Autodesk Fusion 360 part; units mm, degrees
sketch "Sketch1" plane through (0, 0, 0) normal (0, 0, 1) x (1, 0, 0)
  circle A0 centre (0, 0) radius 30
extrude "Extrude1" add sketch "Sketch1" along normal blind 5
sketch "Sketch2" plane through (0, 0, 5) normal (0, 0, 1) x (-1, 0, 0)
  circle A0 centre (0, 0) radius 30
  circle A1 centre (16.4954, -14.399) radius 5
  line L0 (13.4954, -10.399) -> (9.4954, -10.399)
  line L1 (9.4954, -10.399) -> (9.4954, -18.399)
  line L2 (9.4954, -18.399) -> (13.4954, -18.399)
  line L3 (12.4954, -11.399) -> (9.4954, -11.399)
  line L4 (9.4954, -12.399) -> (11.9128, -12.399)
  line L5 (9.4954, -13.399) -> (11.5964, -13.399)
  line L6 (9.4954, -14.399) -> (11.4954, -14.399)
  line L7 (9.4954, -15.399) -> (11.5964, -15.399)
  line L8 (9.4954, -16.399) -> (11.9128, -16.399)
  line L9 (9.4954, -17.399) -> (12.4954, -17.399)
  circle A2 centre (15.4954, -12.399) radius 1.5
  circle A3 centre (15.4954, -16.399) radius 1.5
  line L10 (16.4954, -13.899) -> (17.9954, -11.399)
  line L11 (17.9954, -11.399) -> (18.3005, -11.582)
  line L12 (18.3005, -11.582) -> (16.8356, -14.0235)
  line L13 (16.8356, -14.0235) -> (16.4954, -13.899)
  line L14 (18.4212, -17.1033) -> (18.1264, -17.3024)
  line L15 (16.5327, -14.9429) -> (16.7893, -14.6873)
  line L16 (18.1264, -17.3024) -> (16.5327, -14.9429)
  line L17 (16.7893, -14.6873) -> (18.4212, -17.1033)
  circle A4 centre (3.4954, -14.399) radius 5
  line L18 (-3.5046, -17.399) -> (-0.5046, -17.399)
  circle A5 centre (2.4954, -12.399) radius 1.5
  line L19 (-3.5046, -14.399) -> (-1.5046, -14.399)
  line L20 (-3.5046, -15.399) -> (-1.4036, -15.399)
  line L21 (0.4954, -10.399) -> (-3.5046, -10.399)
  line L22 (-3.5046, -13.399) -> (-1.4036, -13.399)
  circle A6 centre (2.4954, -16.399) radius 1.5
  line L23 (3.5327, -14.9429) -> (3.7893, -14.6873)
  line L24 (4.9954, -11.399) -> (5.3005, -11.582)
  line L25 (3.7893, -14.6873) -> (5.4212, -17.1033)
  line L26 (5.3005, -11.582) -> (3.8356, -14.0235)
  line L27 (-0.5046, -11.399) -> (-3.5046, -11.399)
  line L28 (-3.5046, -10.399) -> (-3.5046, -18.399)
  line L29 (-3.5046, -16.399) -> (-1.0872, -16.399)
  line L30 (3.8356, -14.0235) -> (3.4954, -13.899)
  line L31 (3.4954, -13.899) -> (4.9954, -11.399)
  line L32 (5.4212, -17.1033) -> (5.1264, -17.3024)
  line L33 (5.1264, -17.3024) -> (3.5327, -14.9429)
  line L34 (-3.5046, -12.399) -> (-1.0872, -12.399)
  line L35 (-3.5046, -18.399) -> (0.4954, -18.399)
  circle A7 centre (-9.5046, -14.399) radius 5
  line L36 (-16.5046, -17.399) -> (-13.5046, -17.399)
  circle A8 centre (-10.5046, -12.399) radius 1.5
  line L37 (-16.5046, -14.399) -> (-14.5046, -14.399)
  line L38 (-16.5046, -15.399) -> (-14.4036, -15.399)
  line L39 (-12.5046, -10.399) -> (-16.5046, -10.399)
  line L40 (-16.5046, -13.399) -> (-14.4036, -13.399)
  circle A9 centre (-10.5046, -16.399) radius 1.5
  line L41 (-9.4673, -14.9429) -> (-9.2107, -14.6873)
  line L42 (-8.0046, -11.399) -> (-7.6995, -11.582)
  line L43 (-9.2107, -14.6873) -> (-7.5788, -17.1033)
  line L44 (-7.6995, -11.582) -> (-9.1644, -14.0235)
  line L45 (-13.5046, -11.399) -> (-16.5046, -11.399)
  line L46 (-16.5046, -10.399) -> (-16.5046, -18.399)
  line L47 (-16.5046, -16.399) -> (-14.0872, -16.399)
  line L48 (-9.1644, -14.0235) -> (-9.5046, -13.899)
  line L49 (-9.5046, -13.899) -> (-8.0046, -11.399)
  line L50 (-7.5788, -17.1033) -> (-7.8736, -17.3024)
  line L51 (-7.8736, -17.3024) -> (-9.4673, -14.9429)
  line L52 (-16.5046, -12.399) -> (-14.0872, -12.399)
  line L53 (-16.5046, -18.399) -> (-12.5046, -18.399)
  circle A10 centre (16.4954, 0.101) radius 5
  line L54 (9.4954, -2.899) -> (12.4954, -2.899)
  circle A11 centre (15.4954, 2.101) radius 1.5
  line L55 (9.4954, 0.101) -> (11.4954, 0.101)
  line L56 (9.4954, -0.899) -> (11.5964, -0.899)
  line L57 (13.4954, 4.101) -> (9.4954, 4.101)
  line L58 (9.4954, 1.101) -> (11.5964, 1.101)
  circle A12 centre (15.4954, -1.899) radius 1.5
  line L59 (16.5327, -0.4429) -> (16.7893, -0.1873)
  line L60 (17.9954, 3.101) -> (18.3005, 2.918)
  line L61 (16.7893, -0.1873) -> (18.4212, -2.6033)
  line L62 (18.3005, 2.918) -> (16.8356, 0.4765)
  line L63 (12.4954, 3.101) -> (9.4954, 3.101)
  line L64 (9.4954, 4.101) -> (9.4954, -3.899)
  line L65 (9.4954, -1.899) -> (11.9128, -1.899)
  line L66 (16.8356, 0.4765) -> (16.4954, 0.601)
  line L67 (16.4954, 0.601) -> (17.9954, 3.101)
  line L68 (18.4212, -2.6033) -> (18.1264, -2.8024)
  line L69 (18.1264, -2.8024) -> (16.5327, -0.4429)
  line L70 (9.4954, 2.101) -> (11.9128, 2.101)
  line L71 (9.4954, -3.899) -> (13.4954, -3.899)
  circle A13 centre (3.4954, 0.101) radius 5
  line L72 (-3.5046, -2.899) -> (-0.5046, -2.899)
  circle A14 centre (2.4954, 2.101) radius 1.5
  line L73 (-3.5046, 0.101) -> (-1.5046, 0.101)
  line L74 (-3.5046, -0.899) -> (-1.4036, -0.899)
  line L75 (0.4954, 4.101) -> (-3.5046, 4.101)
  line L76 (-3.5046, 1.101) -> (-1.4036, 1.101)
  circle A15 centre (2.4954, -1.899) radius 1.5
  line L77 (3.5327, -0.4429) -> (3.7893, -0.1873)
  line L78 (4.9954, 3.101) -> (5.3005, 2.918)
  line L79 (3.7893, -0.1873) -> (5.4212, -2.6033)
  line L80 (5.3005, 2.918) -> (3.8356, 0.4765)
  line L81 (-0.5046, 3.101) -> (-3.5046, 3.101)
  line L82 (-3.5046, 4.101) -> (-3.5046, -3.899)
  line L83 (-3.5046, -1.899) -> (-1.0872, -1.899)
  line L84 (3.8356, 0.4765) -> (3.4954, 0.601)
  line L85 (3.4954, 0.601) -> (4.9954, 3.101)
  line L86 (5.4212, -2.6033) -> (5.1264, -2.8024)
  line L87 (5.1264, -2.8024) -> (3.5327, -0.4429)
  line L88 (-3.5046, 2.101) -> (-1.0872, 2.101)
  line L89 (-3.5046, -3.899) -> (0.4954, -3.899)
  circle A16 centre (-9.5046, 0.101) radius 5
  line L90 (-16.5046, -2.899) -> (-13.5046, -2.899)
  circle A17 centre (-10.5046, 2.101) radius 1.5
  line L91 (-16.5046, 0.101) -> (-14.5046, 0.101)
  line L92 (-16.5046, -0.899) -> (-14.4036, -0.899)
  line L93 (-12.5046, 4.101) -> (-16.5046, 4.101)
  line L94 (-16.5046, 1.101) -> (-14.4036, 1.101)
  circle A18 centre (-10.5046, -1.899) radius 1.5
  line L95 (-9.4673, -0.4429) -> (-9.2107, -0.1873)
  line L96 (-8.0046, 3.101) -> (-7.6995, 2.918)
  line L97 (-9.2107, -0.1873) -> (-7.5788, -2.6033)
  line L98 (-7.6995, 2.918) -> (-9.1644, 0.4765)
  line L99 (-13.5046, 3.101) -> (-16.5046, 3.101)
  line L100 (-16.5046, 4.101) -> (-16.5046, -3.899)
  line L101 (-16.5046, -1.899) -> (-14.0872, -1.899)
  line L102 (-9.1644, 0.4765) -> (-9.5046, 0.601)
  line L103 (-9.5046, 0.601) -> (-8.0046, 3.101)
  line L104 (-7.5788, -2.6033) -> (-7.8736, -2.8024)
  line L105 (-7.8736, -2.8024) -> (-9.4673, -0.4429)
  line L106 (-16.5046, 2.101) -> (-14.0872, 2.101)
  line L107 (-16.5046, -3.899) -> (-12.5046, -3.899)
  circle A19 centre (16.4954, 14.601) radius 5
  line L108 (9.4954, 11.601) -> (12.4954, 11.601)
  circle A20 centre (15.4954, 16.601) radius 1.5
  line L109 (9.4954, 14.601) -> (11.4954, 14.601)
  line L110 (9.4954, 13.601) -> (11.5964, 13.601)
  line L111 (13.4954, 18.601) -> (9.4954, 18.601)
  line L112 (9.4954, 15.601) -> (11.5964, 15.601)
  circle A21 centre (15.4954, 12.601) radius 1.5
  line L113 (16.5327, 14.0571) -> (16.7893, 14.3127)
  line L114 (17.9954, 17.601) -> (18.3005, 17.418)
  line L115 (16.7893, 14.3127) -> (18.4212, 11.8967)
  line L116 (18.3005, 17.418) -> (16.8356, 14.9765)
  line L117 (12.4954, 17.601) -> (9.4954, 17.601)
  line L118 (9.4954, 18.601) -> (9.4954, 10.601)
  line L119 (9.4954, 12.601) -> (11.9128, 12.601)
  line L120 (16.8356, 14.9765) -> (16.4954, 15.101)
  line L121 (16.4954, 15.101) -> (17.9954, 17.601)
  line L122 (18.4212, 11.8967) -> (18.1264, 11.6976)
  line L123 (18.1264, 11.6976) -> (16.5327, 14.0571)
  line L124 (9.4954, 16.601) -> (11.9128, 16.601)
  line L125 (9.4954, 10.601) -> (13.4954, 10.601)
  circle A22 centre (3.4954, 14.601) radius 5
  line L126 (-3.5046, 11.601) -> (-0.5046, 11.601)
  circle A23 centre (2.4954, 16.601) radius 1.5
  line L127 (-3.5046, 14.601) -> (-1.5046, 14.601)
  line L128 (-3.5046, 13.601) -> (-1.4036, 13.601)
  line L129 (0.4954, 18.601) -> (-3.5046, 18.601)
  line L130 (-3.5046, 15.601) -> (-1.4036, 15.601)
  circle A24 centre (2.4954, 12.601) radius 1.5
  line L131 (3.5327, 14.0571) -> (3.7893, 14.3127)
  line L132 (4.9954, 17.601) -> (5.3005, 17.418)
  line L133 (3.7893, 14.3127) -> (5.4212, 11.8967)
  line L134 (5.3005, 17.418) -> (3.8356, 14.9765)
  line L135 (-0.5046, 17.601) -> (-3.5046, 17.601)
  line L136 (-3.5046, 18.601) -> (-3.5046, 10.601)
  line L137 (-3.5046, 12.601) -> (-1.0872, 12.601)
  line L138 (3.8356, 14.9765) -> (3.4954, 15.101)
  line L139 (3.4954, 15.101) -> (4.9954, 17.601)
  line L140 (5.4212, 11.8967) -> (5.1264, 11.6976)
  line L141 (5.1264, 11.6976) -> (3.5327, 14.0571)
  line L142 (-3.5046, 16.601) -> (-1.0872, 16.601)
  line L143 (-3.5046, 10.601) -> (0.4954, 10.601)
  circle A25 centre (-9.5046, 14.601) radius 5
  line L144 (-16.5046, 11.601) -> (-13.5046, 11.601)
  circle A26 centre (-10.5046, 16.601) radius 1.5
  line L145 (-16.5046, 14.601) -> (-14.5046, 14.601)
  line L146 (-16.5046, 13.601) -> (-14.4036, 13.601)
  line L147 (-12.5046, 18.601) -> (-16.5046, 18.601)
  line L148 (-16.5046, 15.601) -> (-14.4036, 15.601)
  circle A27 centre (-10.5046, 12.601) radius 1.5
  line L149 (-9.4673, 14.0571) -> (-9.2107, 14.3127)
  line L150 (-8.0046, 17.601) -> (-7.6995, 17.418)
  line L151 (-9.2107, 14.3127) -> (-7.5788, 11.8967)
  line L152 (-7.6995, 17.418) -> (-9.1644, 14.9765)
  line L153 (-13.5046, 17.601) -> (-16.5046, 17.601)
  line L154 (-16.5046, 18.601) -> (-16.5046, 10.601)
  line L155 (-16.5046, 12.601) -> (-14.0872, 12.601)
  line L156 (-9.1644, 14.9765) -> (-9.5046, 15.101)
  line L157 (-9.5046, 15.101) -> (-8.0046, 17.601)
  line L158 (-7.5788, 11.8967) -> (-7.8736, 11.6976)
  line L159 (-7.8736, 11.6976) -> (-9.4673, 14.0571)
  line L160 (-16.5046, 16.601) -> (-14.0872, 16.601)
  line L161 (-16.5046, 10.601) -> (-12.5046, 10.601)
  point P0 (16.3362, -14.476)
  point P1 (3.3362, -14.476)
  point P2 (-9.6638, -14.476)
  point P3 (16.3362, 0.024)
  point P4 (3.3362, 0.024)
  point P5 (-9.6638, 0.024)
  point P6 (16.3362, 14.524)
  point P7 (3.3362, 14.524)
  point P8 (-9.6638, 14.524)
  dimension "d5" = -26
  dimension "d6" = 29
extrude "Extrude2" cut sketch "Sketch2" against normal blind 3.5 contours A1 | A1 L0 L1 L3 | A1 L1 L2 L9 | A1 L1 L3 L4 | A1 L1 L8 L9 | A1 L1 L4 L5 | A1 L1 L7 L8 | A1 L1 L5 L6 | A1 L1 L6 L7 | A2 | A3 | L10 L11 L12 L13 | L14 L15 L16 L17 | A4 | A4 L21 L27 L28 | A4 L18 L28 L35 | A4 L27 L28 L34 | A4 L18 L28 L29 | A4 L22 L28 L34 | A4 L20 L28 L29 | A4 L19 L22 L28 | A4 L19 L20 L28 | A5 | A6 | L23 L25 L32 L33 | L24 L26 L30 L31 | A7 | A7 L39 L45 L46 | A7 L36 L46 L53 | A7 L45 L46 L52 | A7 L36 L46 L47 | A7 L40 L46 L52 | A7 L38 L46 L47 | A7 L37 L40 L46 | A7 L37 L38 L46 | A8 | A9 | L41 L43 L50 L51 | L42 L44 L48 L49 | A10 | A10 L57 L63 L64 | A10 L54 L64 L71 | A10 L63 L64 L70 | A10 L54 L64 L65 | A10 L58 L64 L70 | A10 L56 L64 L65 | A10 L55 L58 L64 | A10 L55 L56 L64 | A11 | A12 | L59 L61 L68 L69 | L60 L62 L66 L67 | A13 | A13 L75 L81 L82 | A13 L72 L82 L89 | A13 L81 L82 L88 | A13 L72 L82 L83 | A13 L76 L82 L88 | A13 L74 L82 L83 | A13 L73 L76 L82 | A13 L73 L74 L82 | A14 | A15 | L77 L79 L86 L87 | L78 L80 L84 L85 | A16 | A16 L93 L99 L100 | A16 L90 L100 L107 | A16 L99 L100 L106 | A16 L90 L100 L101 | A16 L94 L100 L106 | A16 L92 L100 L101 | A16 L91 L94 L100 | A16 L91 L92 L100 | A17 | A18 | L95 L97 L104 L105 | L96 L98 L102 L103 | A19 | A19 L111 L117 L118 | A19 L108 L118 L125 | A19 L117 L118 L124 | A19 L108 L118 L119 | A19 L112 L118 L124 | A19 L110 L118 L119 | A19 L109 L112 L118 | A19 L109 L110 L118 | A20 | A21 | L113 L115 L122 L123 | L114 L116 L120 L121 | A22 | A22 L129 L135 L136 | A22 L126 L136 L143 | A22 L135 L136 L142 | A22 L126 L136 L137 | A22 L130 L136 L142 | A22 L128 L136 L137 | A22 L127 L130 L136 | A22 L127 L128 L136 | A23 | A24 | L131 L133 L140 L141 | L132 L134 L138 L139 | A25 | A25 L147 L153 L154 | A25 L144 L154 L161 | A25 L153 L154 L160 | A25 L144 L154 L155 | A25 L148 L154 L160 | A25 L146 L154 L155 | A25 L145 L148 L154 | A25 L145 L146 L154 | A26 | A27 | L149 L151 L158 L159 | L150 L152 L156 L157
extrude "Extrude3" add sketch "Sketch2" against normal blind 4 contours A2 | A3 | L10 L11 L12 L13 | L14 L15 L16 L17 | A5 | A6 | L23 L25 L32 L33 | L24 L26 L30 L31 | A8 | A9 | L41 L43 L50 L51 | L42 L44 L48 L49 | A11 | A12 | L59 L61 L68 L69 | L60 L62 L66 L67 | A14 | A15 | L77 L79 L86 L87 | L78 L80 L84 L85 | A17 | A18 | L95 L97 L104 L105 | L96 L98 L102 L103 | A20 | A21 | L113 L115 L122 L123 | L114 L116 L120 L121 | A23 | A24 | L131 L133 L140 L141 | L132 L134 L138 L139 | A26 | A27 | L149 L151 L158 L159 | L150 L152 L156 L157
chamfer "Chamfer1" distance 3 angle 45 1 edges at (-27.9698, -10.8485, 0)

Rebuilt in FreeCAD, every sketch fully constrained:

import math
import FreeCAD as App
import Part
import Sketcher
from FreeCAD import Vector
Q = App.Units.Quantity


def edges_at(feature, points):
    """Names of the edges that pass closest to the given points."""
    edges = feature.Shape.Edges
    near = lambda p: min(range(len(edges)), key=lambda i: edges[i].distToShape(Part.Vertex(*p))[0])
    return sorted({f"Edge{near(p) + 1}" for p in points})

doc = App.newDocument("Part")
body = doc.addObject("PartDesign::Body", "Body")

# Sketch on XY plane
sketch1 = body.newObject("Sketcher::SketchObject", "Sketch")
sketch1.AttachmentSupport = (doc.getObject("XY_Plane"), [""])
sketch1.MapMode = "FlatFace"
sketch1.addGeometry(Part.Circle(Vector(0, 0, 0), Vector(0, 0, 1), 30), False)
sketch1.addConstraint(Sketcher.Constraint("Coincident", 0, 3, -1, 1))
sketch1.addConstraint(Sketcher.Constraint("Diameter", 0, Q("60 mm")))
pad1 = body.newObject("PartDesign::Pad", "Pad")
pad1.Profile = sketch1
pad1.Length = 5

# Sketch on XY plane
sketch2 = body.newObject("Sketcher::SketchObject", "Sketch001")
sketch2.AttachmentSupport = (doc.getObject("XY_Plane"), [""])
sketch2.MapMode = "FlatFace"
sketch2.AttachmentOffset = App.Placement(Vector(0, 0, 5), App.Rotation())
sketch2.addGeometry(Part.ArcOfCircle(Part.Circle(Vector(-16.4954, 14.399, 0), Vector(0, 0, 1), 5), math.radians(53.130102), math.radians(306.869898)), False)
sketch2.addGeometry(Part.LineSegment(Vector(-13.4954, 10.399, 0), Vector(-9.4954, 10.399, 0)), False)
sketch2.addGeometry(Part.LineSegment(Vector(-9.4954, 10.399, 0), Vector(-9.4954, 18.399, 0)), False)
sketch2.addGeometry(Part.LineSegment(Vector(-9.4954, 18.399, 0), Vector(-13.4954, 18.399, 0)), False)
sketch2.addGeometry(Part.ArcOfCircle(Part.Circle(Vector(-3.4954, 14.399, 0), Vector(0, 0, 1), 5), math.radians(53.130102), math.radians(306.869898)), False)
sketch2.addGeometry(Part.LineSegment(Vector(-0.4954, 10.399, 0), Vector(3.5046, 10.399, 0)), False)
sketch2.addGeometry(Part.LineSegment(Vector(3.5046, 10.399, 0), Vector(3.5046, 18.399, 0)), False)
sketch2.addGeometry(Part.LineSegment(Vector(3.5046, 18.399, 0), Vector(-0.4954, 18.399, 0)), False)
sketch2.addGeometry(Part.ArcOfCircle(Part.Circle(Vector(9.5046, 14.399, 0), Vector(0, 0, 1), 5), math.radians(53.130102), math.radians(306.869898)), False)
sketch2.addGeometry(Part.LineSegment(Vector(12.5046, 10.399, 0), Vector(16.5046, 10.399, 0)), False)
sketch2.addGeometry(Part.LineSegment(Vector(16.5046, 10.399, 0), Vector(16.5046, 18.399, 0)), False)
sketch2.addGeometry(Part.LineSegment(Vector(16.5046, 18.399, 0), Vector(12.5046, 18.399, 0)), False)
sketch2.addGeometry(Part.ArcOfCircle(Part.Circle(Vector(-16.4954, -0.101, 0), Vector(0, 0, 1), 5), math.radians(53.130102), math.radians(306.869898)), False)
sketch2.addGeometry(Part.LineSegment(Vector(-13.4954, -4.101, 0), Vector(-9.4954, -4.101, 0)), False)
sketch2.addGeometry(Part.LineSegment(Vector(-9.4954, -4.101, 0), Vector(-9.4954, 3.899, 0)), False)
sketch2.addGeometry(Part.LineSegment(Vector(-9.4954, 3.899, 0), Vector(-13.4954, 3.899, 0)), False)
sketch2.addGeometry(Part.ArcOfCircle(Part.Circle(Vector(-3.4954, -0.101, 0), Vector(0, 0, 1), 5), math.radians(53.130102), math.radians(306.869898)), False)
sketch2.addGeometry(Part.LineSegment(Vector(-0.4954, -4.101, 0), Vector(3.5046, -4.101, 0)), False)
sketch2.addGeometry(Part.LineSegment(Vector(3.5046, -4.101, 0), Vector(3.5046, 3.899, 0)), False)
sketch2.addGeometry(Part.LineSegment(Vector(3.5046, 3.899, 0), Vector(-0.4954, 3.899, 0)), False)
sketch2.addGeometry(Part.ArcOfCircle(Part.Circle(Vector(9.5046, -0.101, 0), Vector(0, 0, 1), 5), math.radians(53.130102), math.radians(306.869898)), False)
sketch2.addGeometry(Part.LineSegment(Vector(12.5046, -4.101, 0), Vector(16.5046, -4.101, 0)), False)
sketch2.addGeometry(Part.LineSegment(Vector(16.5046, -4.101, 0), Vector(16.5046, 3.899, 0)), False)
sketch2.addGeometry(Part.LineSegment(Vector(16.5046, 3.899, 0), Vector(12.5046, 3.899, 0)), False)
sketch2.addGeometry(Part.ArcOfCircle(Part.Circle(Vector(-16.4954, -14.601, 0), Vector(0, 0, 1), 5), math.radians(53.130102), math.radians(306.869898)), False)
sketch2.addGeometry(Part.LineSegment(Vector(-13.4954, -18.601, 0), Vector(-9.4954, -18.601, 0)), False)
sketch2.addGeometry(Part.LineSegment(Vector(-9.4954, -18.601, 0), Vector(-9.4954, -10.601, 0)), False)
sketch2.addGeometry(Part.LineSegment(Vector(-9.4954, -10.601, 0), Vector(-13.4954, -10.601, 0)), False)
sketch2.addGeometry(Part.ArcOfCircle(Part.Circle(Vector(-3.4954, -14.601, 0), Vector(0, 0, 1), 5), math.radians(53.130102), math.radians(306.869898)), False)
sketch2.addGeometry(Part.LineSegment(Vector(-0.4954, -18.601, 0), Vector(3.5046, -18.601, 0)), False)
sketch2.addGeometry(Part.LineSegment(Vector(3.5046, -18.601, 0), Vector(3.5046, -10.601, 0)), False)
sketch2.addGeometry(Part.LineSegment(Vector(3.5046, -10.601, 0), Vector(-0.4954, -10.601, 0)), False)
sketch2.addGeometry(Part.ArcOfCircle(Part.Circle(Vector(9.5046, -14.601, 0), Vector(0, 0, 1), 5), math.radians(53.130102), math.radians(306.869898)), False)
sketch2.addGeometry(Part.LineSegment(Vector(12.5046, -18.601, 0), Vector(16.5046, -18.601, 0)), False)
sketch2.addGeometry(Part.LineSegment(Vector(16.5046, -18.601, 0), Vector(16.5046, -10.601, 0)), False)
sketch2.addGeometry(Part.LineSegment(Vector(16.5046, -10.601, 0), Vector(12.5046, -10.601, 0)), False)
sketch2.addConstraint(Sketcher.Constraint("Coincident", 0, 2, 1, 1))
sketch2.addConstraint(Sketcher.Constraint("Coincident", 1, 2, 2, 1))
sketch2.addConstraint(Sketcher.Constraint("Coincident", 2, 2, 3, 1))
sketch2.addConstraint(Sketcher.Constraint("Coincident", 3, 2, 0, 1))
sketch2.addConstraint(Sketcher.Constraint("Coincident", 4, 2, 5, 1))
sketch2.addConstraint(Sketcher.Constraint("Coincident", 5, 2, 6, 1))
sketch2.addConstraint(Sketcher.Constraint("Coincident", 6, 2, 7, 1))
sketch2.addConstraint(Sketcher.Constraint("Coincident", 7, 2, 4, 1))
sketch2.addConstraint(Sketcher.Constraint("Coincident", 8, 2, 9, 1))
sketch2.addConstraint(Sketcher.Constraint("Coincident", 9, 2, 10, 1))
sketch2.addConstraint(Sketcher.Constraint("Coincident", 10, 2, 11, 1))
sketch2.addConstraint(Sketcher.Constraint("Coincident", 11, 2, 8, 1))
sketch2.addConstraint(Sketcher.Constraint("Coincident", 12, 2, 13, 1))
sketch2.addConstraint(Sketcher.Constraint("Coincident", 13, 2, 14, 1))
sketch2.addConstraint(Sketcher.Constraint("Coincident", 14, 2, 15, 1))
sketch2.addConstraint(Sketcher.Constraint("Coincident", 15, 2, 12, 1))
sketch2.addConstraint(Sketcher.Constraint("Coincident", 16, 2, 17, 1))
sketch2.addConstraint(Sketcher.Constraint("Coincident", 17, 2, 18, 1))
sketch2.addConstraint(Sketcher.Constraint("Coincident", 18, 2, 19, 1))
sketch2.addConstraint(Sketcher.Constraint("Coincident", 19, 2, 16, 1))
sketch2.addConstraint(Sketcher.Constraint("Coincident", 20, 2, 21, 1))
sketch2.addConstraint(Sketcher.Constraint("Coincident", 21, 2, 22, 1))
sketch2.addConstraint(Sketcher.Constraint("Coincident", 22, 2, 23, 1))
sketch2.addConstraint(Sketcher.Constraint("Coincident", 23, 2, 20, 1))
sketch2.addConstraint(Sketcher.Constraint("Coincident", 24, 2, 25, 1))
sketch2.addConstraint(Sketcher.Constraint("Coincident", 25, 2, 26, 1))
sketch2.addConstraint(Sketcher.Constraint("Coincident", 26, 2, 27, 1))
sketch2.addConstraint(Sketcher.Constraint("Coincident", 27, 2, 24, 1))
sketch2.addConstraint(Sketcher.Constraint("Coincident", 28, 2, 29, 1))
sketch2.addConstraint(Sketcher.Constraint("Coincident", 29, 2, 30, 1))
sketch2.addConstraint(Sketcher.Constraint("Coincident", 30, 2, 31, 1))
sketch2.addConstraint(Sketcher.Constraint("Coincident", 31, 2, 28, 1))
sketch2.addConstraint(Sketcher.Constraint("Coincident", 32, 2, 33, 1))
sketch2.addConstraint(Sketcher.Constraint("Coincident", 33, 2, 34, 1))
sketch2.addConstraint(Sketcher.Constraint("Coincident", 34, 2, 35, 1))
sketch2.addConstraint(Sketcher.Constraint("Coincident", 35, 2, 32, 1))
sketch2.addConstraint(Sketcher.Constraint("Horizontal", 1))
sketch2.addConstraint(Sketcher.Constraint("Vertical", 2))
sketch2.addConstraint(Sketcher.Constraint("Horizontal", 3))
sketch2.addConstraint(Sketcher.Constraint("Horizontal", 5))
sketch2.addConstraint(Sketcher.Constraint("Vertical", 6))
sketch2.addConstraint(Sketcher.Constraint("Horizontal", 7))
sketch2.addConstraint(Sketcher.Constraint("Horizontal", 9))
sketch2.addConstraint(Sketcher.Constraint("Vertical", 10))
sketch2.addConstraint(Sketcher.Constraint("Horizontal", 11))
sketch2.addConstraint(Sketcher.Constraint("Horizontal", 13))
sketch2.addConstraint(Sketcher.Constraint("Vertical", 14))
sketch2.addConstraint(Sketcher.Constraint("Horizontal", 15))
sketch2.addConstraint(Sketcher.Constraint("Horizontal", 17))
sketch2.addConstraint(Sketcher.Constraint("Vertical", 18))
sketch2.addConstraint(Sketcher.Constraint("Horizontal", 19))
sketch2.addConstraint(Sketcher.Constraint("Horizontal", 21))
sketch2.addConstraint(Sketcher.Constraint("Vertical", 22))
sketch2.addConstraint(Sketcher.Constraint("Horizontal", 23))
sketch2.addConstraint(Sketcher.Constraint("Horizontal", 25))
sketch2.addConstraint(Sketcher.Constraint("Vertical", 26))
sketch2.addConstraint(Sketcher.Constraint("Horizontal", 27))
sketch2.addConstraint(Sketcher.Constraint("Horizontal", 29))
sketch2.addConstraint(Sketcher.Constraint("Vertical", 30))
sketch2.addConstraint(Sketcher.Constraint("Horizontal", 31))
sketch2.addConstraint(Sketcher.Constraint("Horizontal", 33))
sketch2.addConstraint(Sketcher.Constraint("Vertical", 34))
sketch2.addConstraint(Sketcher.Constraint("Horizontal", 35))
sketch2.addConstraint(Sketcher.Constraint("Equal", 0, 4))
sketch2.addConstraint(Sketcher.Constraint("Equal", 4, 8))
sketch2.addConstraint(Sketcher.Constraint("Equal", 8, 12))
sketch2.addConstraint(Sketcher.Constraint("Equal", 12, 16))
sketch2.addConstraint(Sketcher.Constraint("Equal", 16, 20))
sketch2.addConstraint(Sketcher.Constraint("Equal", 20, 24))
sketch2.addConstraint(Sketcher.Constraint("Equal", 24, 28))
sketch2.addConstraint(Sketcher.Constraint("Equal", 28, 32))
sketch2.addConstraint(Sketcher.Constraint("Horizontal", 0, 3, 4, 3))
sketch2.addConstraint(Sketcher.Constraint("Horizontal", 4, 3, 8, 3))
sketch2.addConstraint(Sketcher.Constraint("Horizontal", 12, 3, 16, 3))
sketch2.addConstraint(Sketcher.Constraint("Horizontal", 16, 3, 20, 3))
sketch2.addConstraint(Sketcher.Constraint("Horizontal", 24, 3, 28, 3))
sketch2.addConstraint(Sketcher.Constraint("Horizontal", 28, 3, 32, 3))
sketch2.addConstraint(Sketcher.Constraint("Horizontal", 1, 2, 4, 2))
sketch2.addConstraint(Sketcher.Constraint("Horizontal", 3, 2, 6, 2))
sketch2.addConstraint(Sketcher.Constraint("Horizontal", 5, 2, 8, 2))
sketch2.addConstraint(Sketcher.Constraint("Horizontal", 7, 2, 10, 2))
sketch2.addConstraint(Sketcher.Constraint("Horizontal", 13, 2, 16, 2))
sketch2.addConstraint(Sketcher.Constraint("Horizontal", 15, 2, 18, 2))
sketch2.addConstraint(Sketcher.Constraint("Horizontal", 17, 2, 20, 2))
sketch2.addConstraint(Sketcher.Constraint("Horizontal", 19, 2, 22, 2))
sketch2.addConstraint(Sketcher.Constraint("Horizontal", 25, 2, 28, 2))
sketch2.addConstraint(Sketcher.Constraint("Horizontal", 27, 2, 30, 2))
sketch2.addConstraint(Sketcher.Constraint("Horizontal", 29, 2, 32, 2))
sketch2.addConstraint(Sketcher.Constraint("Horizontal", 31, 2, 34, 2))
sketch2.addConstraint(Sketcher.Constraint("Vertical", 0, 3, 12, 3))
sketch2.addConstraint(Sketcher.Constraint("Vertical", 4, 3, 16, 3))
sketch2.addConstraint(Sketcher.Constraint("Vertical", 8, 3, 20, 3))
sketch2.addConstraint(Sketcher.Constraint("Vertical", 12, 3, 24, 3))
sketch2.addConstraint(Sketcher.Constraint("Vertical", 16, 3, 28, 3))
sketch2.addConstraint(Sketcher.Constraint("Vertical", 20, 3, 32, 3))
sketch2.addConstraint(Sketcher.Constraint("Vertical", 0, 2, 3, 2))
sketch2.addConstraint(Sketcher.Constraint("Vertical", 3, 2, 12, 2))
sketch2.addConstraint(Sketcher.Constraint("Vertical", 2, 2, 13, 2))
sketch2.addConstraint(Sketcher.Constraint("Vertical", 12, 2, 15, 2))
sketch2.addConstraint(Sketcher.Constraint("Vertical", 6, 2, 17, 2))
sketch2.addConstraint(Sketcher.Constraint("Vertical", 10, 2, 21, 2))
sketch2.addConstraint(Sketcher.Constraint("Vertical", 15, 2, 24, 2))
sketch2.addConstraint(Sketcher.Constraint("Vertical", 14, 2, 25, 2))
sketch2.addConstraint(Sketcher.Constraint("Vertical", 24, 2, 27, 2))
sketch2.addConstraint(Sketcher.Constraint("Vertical", 18, 2, 29, 2))
sketch2.addConstraint(Sketcher.Constraint("Vertical", 22, 2, 33, 2))
sketch2.addConstraint(Sketcher.Constraint("Equal", 3, 5))
sketch2.addConstraint(Sketcher.Constraint("Equal", 7, 9))
sketch2.addConstraint(Sketcher.Constraint("Radius", 0, Q("5 mm")))
sketch2.addConstraint(Sketcher.Constraint("DistanceX", 0, 3, 8, 3, Q("26 mm")))
sketch2.addConstraint(Sketcher.Constraint("DistanceY", 24, 3, 0, 3, Q("29 mm")))
sketch2.addConstraint(Sketcher.Constraint("DistanceX", 1, 1, 1, 2, Q("4 mm")))
sketch2.addConstraint(Sketcher.Constraint("DistanceY", 2, 1, 2, 2, Q("8 mm")))
sketch2.addConstraint(Sketcher.Constraint("DistanceX", 0, 3, 4, 3, Q("13 mm")))
sketch2.addConstraint(Sketcher.Constraint("DistanceY", 12, 3, 0, 3, Q("14.5 mm")))
sketch2.addConstraint(Sketcher.Constraint("DistanceY", -1, 1, 0, 3, Q("14.399 mm")))
sketch2.addConstraint(Sketcher.Constraint("DistanceX", 0, 3, -1, 1, Q("16.4954 mm")))
pocket1 = body.newObject("PartDesign::Pocket", "Pocket")
pocket1.Profile = sketch2
pocket1.Length = 3.5

# Sketch on XY plane
sketch3 = body.newObject("Sketcher::SketchObject", "Sketch002")
sketch3.AttachmentSupport = (doc.getObject("XY_Plane"), [""])
sketch3.MapMode = "FlatFace"
sketch3.AttachmentOffset = App.Placement(Vector(0, 0, 5), App.Rotation())
sketch3.addGeometry(Part.Circle(Vector(-15.4954, 12.399, 0), Vector(0, 0, 1), 1.5), False)
sketch3.addGeometry(Part.Circle(Vector(-15.4954, 16.399, 0), Vector(0, 0, 1), 1.5), False)
sketch3.addGeometry(Part.LineSegment(Vector(-17.9954, 11.399, 0), Vector(-16.4954, 13.899, 0)), False)
sketch3.addGeometry(Part.LineSegment(Vector(-16.4954, 13.899, 0), Vector(-16.8356, 14.0235, 0)), False)
sketch3.addGeometry(Part.LineSegment(Vector(-16.8356, 14.0235, 0), Vector(-18.3005, 11.582, 0)), False)
sketch3.addGeometry(Part.LineSegment(Vector(-18.3005, 11.582, 0), Vector(-17.9954, 11.399, 0)), False)
sketch3.addGeometry(Part.LineSegment(Vector(-18.1264, 17.3024, 0), Vector(-18.4212, 17.1033, 0)), False)
sketch3.addGeometry(Part.LineSegment(Vector(-18.4212, 17.1033, 0), Vector(-16.7893, 14.6873, 0)), False)
sketch3.addGeometry(Part.LineSegment(Vector(-16.7893, 14.6873, 0), Vector(-16.5327, 14.9429, 0)), False)
sketch3.addGeometry(Part.LineSegment(Vector(-16.5327, 14.9429, 0), Vector(-18.1264, 17.3024, 0)), False)
sketch3.addGeometry(Part.Circle(Vector(-2.4954, 12.399, 0), Vector(0, 0, 1), 1.5), False)
sketch3.addGeometry(Part.Circle(Vector(-2.4954, 16.399, 0), Vector(0, 0, 1), 1.5), False)
sketch3.addGeometry(Part.LineSegment(Vector(-3.7893, 14.6873, 0), Vector(-3.5327, 14.9429, 0)), False)
sketch3.addGeometry(Part.LineSegment(Vector(-3.5327, 14.9429, 0), Vector(-5.1264, 17.3024, 0)), False)
sketch3.addGeometry(Part.LineSegment(Vector(-5.1264, 17.3024, 0), Vector(-5.4212, 17.1033, 0)), False)
sketch3.addGeometry(Part.LineSegment(Vector(-5.4212, 17.1033, 0), Vector(-3.7893, 14.6873, 0)), False)
sketch3.addGeometry(Part.LineSegment(Vector(-5.3005, 11.582, 0), Vector(-4.9954, 11.399, 0)), False)
sketch3.addGeometry(Part.LineSegment(Vector(-4.9954, 11.399, 0), Vector(-3.4954, 13.899, 0)), False)
sketch3.addGeometry(Part.LineSegment(Vector(-3.4954, 13.899, 0), Vector(-3.8356, 14.0235, 0)), False)
sketch3.addGeometry(Part.LineSegment(Vector(-3.8356, 14.0235, 0), Vector(-5.3005, 11.582, 0)), False)
sketch3.addGeometry(Part.Circle(Vector(10.5046, 12.399, 0), Vector(0, 0, 1), 1.5), False)
sketch3.addGeometry(Part.Circle(Vector(10.5046, 16.399, 0), Vector(0, 0, 1), 1.5), False)
sketch3.addGeometry(Part.LineSegment(Vector(9.2107, 14.6873, 0), Vector(9.4673, 14.9429, 0)), False)
sketch3.addGeometry(Part.LineSegment(Vector(9.4673, 14.9429, 0), Vector(7.8736, 17.3024, 0)), False)
sketch3.addGeometry(Part.LineSegment(Vector(7.8736, 17.3024, 0), Vector(7.5788, 17.1033, 0)), False)
sketch3.addGeometry(Part.LineSegment(Vector(7.5788, 17.1033, 0), Vector(9.2107, 14.6873, 0)), False)
sketch3.addGeometry(Part.LineSegment(Vector(7.6995, 11.582, 0), Vector(8.0046, 11.399, 0)), False)
sketch3.addGeometry(Part.LineSegment(Vector(8.0046, 11.399, 0), Vector(9.5046, 13.899, 0)), False)
sketch3.addGeometry(Part.LineSegment(Vector(9.5046, 13.899, 0), Vector(9.1644, 14.0235, 0)), False)
sketch3.addGeometry(Part.LineSegment(Vector(9.1644, 14.0235, 0), Vector(7.6995, 11.582, 0)), False)
sketch3.addGeometry(Part.Circle(Vector(-15.4954, -2.101, 0), Vector(0, 0, 1), 1.5), False)
sketch3.addGeometry(Part.Circle(Vector(-15.4954, 1.899, 0), Vector(0, 0, 1), 1.5), False)
sketch3.addGeometry(Part.LineSegment(Vector(-16.7893, 0.1873, 0), Vector(-16.5327, 0.4429, 0)), False)
sketch3.addGeometry(Part.LineSegment(Vector(-16.5327, 0.4429, 0), Vector(-18.1264, 2.8024, 0)), False)
sketch3.addGeometry(Part.LineSegment(Vector(-18.1264, 2.8024, 0), Vector(-18.4212, 2.6033, 0)), False)
sketch3.addGeometry(Part.LineSegment(Vector(-18.4212, 2.6033, 0), Vector(-16.7893, 0.1873, 0)), False)
sketch3.addGeometry(Part.LineSegment(Vector(-18.3005, -2.918, 0), Vector(-17.9954, -3.101, 0)), False)
sketch3.addGeometry(Part.LineSegment(Vector(-17.9954, -3.101, 0), Vector(-16.4954, -0.601, 0)), False)
sketch3.addGeometry(Part.LineSegment(Vector(-16.4954, -0.601, 0), Vector(-16.8356, -0.4765, 0)), False)
sketch3.addGeometry(Part.LineSegment(Vector(-16.8356, -0.4765, 0), Vector(-18.3005, -2.918, 0)), False)
sketch3.addGeometry(Part.Circle(Vector(-2.4954, -2.101, 0), Vector(0, 0, 1), 1.5), False)
sketch3.addGeometry(Part.Circle(Vector(-2.4954, 1.899, 0), Vector(0, 0, 1), 1.5), False)
sketch3.addGeometry(Part.LineSegment(Vector(-3.7893, 0.1873, 0), Vector(-3.5327, 0.4429, 0)), False)
sketch3.addGeometry(Part.LineSegment(Vector(-3.5327, 0.4429, 0), Vector(-5.1264, 2.8024, 0)), False)
sketch3.addGeometry(Part.LineSegment(Vector(-5.1264, 2.8024, 0), Vector(-5.4212, 2.6033, 0)), False)
sketch3.addGeometry(Part.LineSegment(Vector(-5.4212, 2.6033, 0), Vector(-3.7893, 0.1873, 0)), False)
sketch3.addGeometry(Part.LineSegment(Vector(-5.3005, -2.918, 0), Vector(-4.9954, -3.101, 0)), False)
sketch3.addGeometry(Part.LineSegment(Vector(-4.9954, -3.101, 0), Vector(-3.4954, -0.601, 0)), False)
sketch3.addGeometry(Part.LineSegment(Vector(-3.4954, -0.601, 0), Vector(-3.8356, -0.4765, 0)), False)
sketch3.addGeometry(Part.LineSegment(Vector(-3.8356, -0.4765, 0), Vector(-5.3005, -2.918, 0)), False)
sketch3.addGeometry(Part.Circle(Vector(10.5046, -2.101, 0), Vector(0, 0, 1), 1.5), False)
sketch3.addGeometry(Part.Circle(Vector(10.5046, 1.899, 0), Vector(0, 0, 1), 1.5), False)
sketch3.addGeometry(Part.LineSegment(Vector(9.2107, 0.1873, 0), Vector(9.4673, 0.4429, 0)), False)
sketch3.addGeometry(Part.LineSegment(Vector(9.4673, 0.4429, 0), Vector(7.8736, 2.8024, 0)), False)
sketch3.addGeometry(Part.LineSegment(Vector(7.8736, 2.8024, 0), Vector(7.5788, 2.6033, 0)), False)
sketch3.addGeometry(Part.LineSegment(Vector(7.5788, 2.6033, 0), Vector(9.2107, 0.1873, 0)), False)
sketch3.addGeometry(Part.LineSegment(Vector(7.6995, -2.918, 0), Vector(8.0046, -3.101, 0)), False)
sketch3.addGeometry(Part.LineSegment(Vector(8.0046, -3.101, 0), Vector(9.5046, -0.601, 0)), False)
sketch3.addGeometry(Part.LineSegment(Vector(9.5046, -0.601, 0), Vector(9.1644, -0.4765, 0)), False)
sketch3.addGeometry(Part.LineSegment(Vector(9.1644, -0.4765, 0), Vector(7.6995, -2.918, 0)), False)
sketch3.addGeometry(Part.Circle(Vector(-15.4954, -16.601, 0), Vector(0, 0, 1), 1.5), False)
sketch3.addGeometry(Part.Circle(Vector(-15.4954, -12.601, 0), Vector(0, 0, 1), 1.5), False)
sketch3.addGeometry(Part.LineSegment(Vector(-16.7893, -14.3127, 0), Vector(-16.5327, -14.0571, 0)), False)
sketch3.addGeometry(Part.LineSegment(Vector(-16.5327, -14.0571, 0), Vector(-18.1264, -11.6976, 0)), False)
sketch3.addGeometry(Part.LineSegment(Vector(-18.1264, -11.6976, 0), Vector(-18.4212, -11.8967, 0)), False)
sketch3.addGeometry(Part.LineSegment(Vector(-18.4212, -11.8967, 0), Vector(-16.7893, -14.3127, 0)), False)
sketch3.addGeometry(Part.LineSegment(Vector(-18.3005, -17.418, 0), Vector(-17.9954, -17.601, 0)), False)
sketch3.addGeometry(Part.LineSegment(Vector(-17.9954, -17.601, 0), Vector(-16.4954, -15.101, 0)), False)
sketch3.addGeometry(Part.LineSegment(Vector(-16.4954, -15.101, 0), Vector(-16.8356, -14.9765, 0)), False)
sketch3.addGeometry(Part.LineSegment(Vector(-16.8356, -14.9765, 0), Vector(-18.3005, -17.418, 0)), False)
sketch3.addGeometry(Part.Circle(Vector(-2.4954, -16.601, 0), Vector(0, 0, 1), 1.5), False)
sketch3.addGeometry(Part.Circle(Vector(-2.4954, -12.601, 0), Vector(0, 0, 1), 1.5), False)
sketch3.addGeometry(Part.LineSegment(Vector(-3.7893, -14.3127, 0), Vector(-3.5327, -14.0571, 0)), False)
sketch3.addGeometry(Part.LineSegment(Vector(-3.5327, -14.0571, 0), Vector(-5.1264, -11.6976, 0)), False)
sketch3.addGeometry(Part.LineSegment(Vector(-5.1264, -11.6976, 0), Vector(-5.4212, -11.8967, 0)), False)
sketch3.addGeometry(Part.LineSegment(Vector(-5.4212, -11.8967, 0), Vector(-3.7893, -14.3127, 0)), False)
sketch3.addGeometry(Part.LineSegment(Vector(-5.3005, -17.418, 0), Vector(-4.9954, -17.601, 0)), False)
sketch3.addGeometry(Part.LineSegment(Vector(-4.9954, -17.601, 0), Vector(-3.4954, -15.101, 0)), False)
sketch3.addGeometry(Part.LineSegment(Vector(-3.4954, -15.101, 0), Vector(-3.8356, -14.9765, 0)), False)
sketch3.addGeometry(Part.LineSegment(Vector(-3.8356, -14.9765, 0), Vector(-5.3005, -17.418, 0)), False)
sketch3.addGeometry(Part.Circle(Vector(10.5046, -16.601, 0), Vector(0, 0, 1), 1.5), False)
sketch3.addGeometry(Part.Circle(Vector(10.5046, -12.601, 0), Vector(0, 0, 1), 1.5), False)
sketch3.addGeometry(Part.LineSegment(Vector(9.2107, -14.3127, 0), Vector(9.4673, -14.0571, 0)), False)
sketch3.addGeometry(Part.LineSegment(Vector(9.4673, -14.0571, 0), Vector(7.8736, -11.6976, 0)), False)
sketch3.addGeometry(Part.LineSegment(Vector(7.8736, -11.6976, 0), Vector(7.5788, -11.8967, 0)), False)
sketch3.addGeometry(Part.LineSegment(Vector(7.5788, -11.8967, 0), Vector(9.2107, -14.3127, 0)), False)
sketch3.addGeometry(Part.LineSegment(Vector(7.6995, -17.418, 0), Vector(8.0046, -17.601, 0)), False)
sketch3.addGeometry(Part.LineSegment(Vector(8.0046, -17.601, 0), Vector(9.5046, -15.101, 0)), False)
sketch3.addGeometry(Part.LineSegment(Vector(9.5046, -15.101, 0), Vector(9.1644, -14.9765, 0)), False)
sketch3.addGeometry(Part.LineSegment(Vector(9.1644, -14.9765, 0), Vector(7.6995, -17.418, 0)), False)
sketch3.addConstraint(Sketcher.Constraint("Coincident", 2, 2, 3, 1))
sketch3.addConstraint(Sketcher.Constraint("Coincident", 3, 2, 4, 1))
sketch3.addConstraint(Sketcher.Constraint("Coincident", 4, 2, 5, 1))
sketch3.addConstraint(Sketcher.Constraint("Coincident", 5, 2, 2, 1))
sketch3.addConstraint(Sketcher.Constraint("Coincident", 6, 2, 7, 1))
sketch3.addConstraint(Sketcher.Constraint("Coincident", 7, 2, 8, 1))
sketch3.addConstraint(Sketcher.Constraint("Coincident", 8, 2, 9, 1))
sketch3.addConstraint(Sketcher.Constraint("Coincident", 9, 2, 6, 1))
sketch3.addConstraint(Sketcher.Constraint("Coincident", 12, 2, 13, 1))
sketch3.addConstraint(Sketcher.Constraint("Coincident", 13, 2, 14, 1))
sketch3.addConstraint(Sketcher.Constraint("Coincident", 14, 2, 15, 1))
sketch3.addConstraint(Sketcher.Constraint("Coincident", 15, 2, 12, 1))
sketch3.addConstraint(Sketcher.Constraint("Coincident", 16, 2, 17, 1))
sketch3.addConstraint(Sketcher.Constraint("Coincident", 17, 2, 18, 1))
sketch3.addConstraint(Sketcher.Constraint("Coincident", 18, 2, 19, 1))
sketch3.addConstraint(Sketcher.Constraint("Coincident", 19, 2, 16, 1))
sketch3.addConstraint(Sketcher.Constraint("Coincident", 22, 2, 23, 1))
sketch3.addConstraint(Sketcher.Constraint("Coincident", 23, 2, 24, 1))
sketch3.addConstraint(Sketcher.Constraint("Coincident", 24, 2, 25, 1))
sketch3.addConstraint(Sketcher.Constraint("Coincident", 25, 2, 22, 1))
sketch3.addConstraint(Sketcher.Constraint("Coincident", 26, 2, 27, 1))
sketch3.addConstraint(Sketcher.Constraint("Coincident", 27, 2, 28, 1))
sketch3.addConstraint(Sketcher.Constraint("Coincident", 28, 2, 29, 1))
sketch3.addConstraint(Sketcher.Constraint("Coincident", 29, 2, 26, 1))
sketch3.addConstraint(Sketcher.Constraint("Coincident", 32, 2, 33, 1))
sketch3.addConstraint(Sketcher.Constraint("Coincident", 33, 2, 34, 1))
sketch3.addConstraint(Sketcher.Constraint("Coincident", 34, 2, 35, 1))
sketch3.addConstraint(Sketcher.Constraint("Coincident", 35, 2, 32, 1))
sketch3.addConstraint(Sketcher.Constraint("Coincident", 36, 2, 37, 1))
sketch3.addConstraint(Sketcher.Constraint("Coincident", 37, 2, 38, 1))
sketch3.addConstraint(Sketcher.Constraint("Coincident", 38, 2, 39, 1))
sketch3.addConstraint(Sketcher.Constraint("Coincident", 39, 2, 36, 1))
sketch3.addConstraint(Sketcher.Constraint("Coincident", 42, 2, 43, 1))
sketch3.addConstraint(Sketcher.Constraint("Coincident", 43, 2, 44, 1))
sketch3.addConstraint(Sketcher.Constraint("Coincident", 44, 2, 45, 1))
sketch3.addConstraint(Sketcher.Constraint("Coincident", 45, 2, 42, 1))
sketch3.addConstraint(Sketcher.Constraint("Coincident", 46, 2, 47, 1))
sketch3.addConstraint(Sketcher.Constraint("Coincident", 47, 2, 48, 1))
sketch3.addConstraint(Sketcher.Constraint("Coincident", 48, 2, 49, 1))
sketch3.addConstraint(Sketcher.Constraint("Coincident", 49, 2, 46, 1))
sketch3.addConstraint(Sketcher.Constraint("Coincident", 52, 2, 53, 1))
sketch3.addConstraint(Sketcher.Constraint("Coincident", 53, 2, 54, 1))
sketch3.addConstraint(Sketcher.Constraint("Coincident", 54, 2, 55, 1))
sketch3.addConstraint(Sketcher.Constraint("Coincident", 55, 2, 52, 1))
sketch3.addConstraint(Sketcher.Constraint("Coincident", 56, 2, 57, 1))
sketch3.addConstraint(Sketcher.Constraint("Coincident", 57, 2, 58, 1))
sketch3.addConstraint(Sketcher.Constraint("Coincident", 58, 2, 59, 1))
sketch3.addConstraint(Sketcher.Constraint("Coincident", 59, 2, 56, 1))
sketch3.addConstraint(Sketcher.Constraint("Coincident", 62, 2, 63, 1))
sketch3.addConstraint(Sketcher.Constraint("Coincident", 63, 2, 64, 1))
sketch3.addConstraint(Sketcher.Constraint("Coincident", 64, 2, 65, 1))
sketch3.addConstraint(Sketcher.Constraint("Coincident", 65, 2, 62, 1))
sketch3.addConstraint(Sketcher.Constraint("Coincident", 66, 2, 67, 1))
sketch3.addConstraint(Sketcher.Constraint("Coincident", 67, 2, 68, 1))
sketch3.addConstraint(Sketcher.Constraint("Coincident", 68, 2, 69, 1))
sketch3.addConstraint(Sketcher.Constraint("Coincident", 69, 2, 66, 1))
sketch3.addConstraint(Sketcher.Constraint("Coincident", 72, 2, 73, 1))
sketch3.addConstraint(Sketcher.Constraint("Coincident", 73, 2, 74, 1))
sketch3.addConstraint(Sketcher.Constraint("Coincident", 74, 2, 75, 1))
sketch3.addConstraint(Sketcher.Constraint("Coincident", 75, 2, 72, 1))
sketch3.addConstraint(Sketcher.Constraint("Coincident", 76, 2, 77, 1))
sketch3.addConstraint(Sketcher.Constraint("Coincident", 77, 2, 78, 1))
sketch3.addConstraint(Sketcher.Constraint("Coincident", 78, 2, 79, 1))
sketch3.addConstraint(Sketcher.Constraint("Coincident", 79, 2, 76, 1))
sketch3.addConstraint(Sketcher.Constraint("Coincident", 82, 2, 83, 1))
sketch3.addConstraint(Sketcher.Constraint("Coincident", 83, 2, 84, 1))
sketch3.addConstraint(Sketcher.Constraint("Coincident", 84, 2, 85, 1))
sketch3.addConstraint(Sketcher.Constraint("Coincident", 85, 2, 82, 1))
sketch3.addConstraint(Sketcher.Constraint("Coincident", 86, 2, 87, 1))
sketch3.addConstraint(Sketcher.Constraint("Coincident", 87, 2, 88, 1))
sketch3.addConstraint(Sketcher.Constraint("Coincident", 88, 2, 89, 1))
sketch3.addConstraint(Sketcher.Constraint("Coincident", 89, 2, 86, 1))
sketch3.addConstraint(Sketcher.Constraint("Equal", 0, 1))
sketch3.addConstraint(Sketcher.Constraint("Equal", 1, 10))
sketch3.addConstraint(Sketcher.Constraint("Equal", 10, 11))
sketch3.addConstraint(Sketcher.Constraint("Equal", 11, 20))
sketch3.addConstraint(Sketcher.Constraint("Equal", 20, 21))
sketch3.addConstraint(Sketcher.Constraint("Equal", 21, 30))
sketch3.addConstraint(Sketcher.Constraint("Equal", 30, 31))
sketch3.addConstraint(Sketcher.Constraint("Equal", 31, 40))
sketch3.addConstraint(Sketcher.Constraint("Equal", 40, 41))
sketch3.addConstraint(Sketcher.Constraint("Equal", 41, 50))
sketch3.addConstraint(Sketcher.Constraint("Equal", 50, 51))
sketch3.addConstraint(Sketcher.Constraint("Equal", 51, 60))
sketch3.addConstraint(Sketcher.Constraint("Equal", 60, 61))
sketch3.addConstraint(Sketcher.Constraint("Equal", 61, 70))
sketch3.addConstraint(Sketcher.Constraint("Equal", 70, 71))
sketch3.addConstraint(Sketcher.Constraint("Equal", 71, 80))
sketch3.addConstraint(Sketcher.Constraint("Equal", 80, 81))
sketch3.addConstraint(Sketcher.Constraint("Parallel", 2, 4))
sketch3.addConstraint(Sketcher.Constraint("Perpendicular", 4, 5))
sketch3.addConstraint(Sketcher.Constraint("Perpendicular", 6, 7))
sketch3.addConstraint(Sketcher.Constraint("Parallel", 7, 9))
sketch3.addConstraint(Sketcher.Constraint("Parallel", 8, 12))
sketch3.addConstraint(Sketcher.Constraint("Parallel", 9, 13))
sketch3.addConstraint(Sketcher.Constraint("Perpendicular", 13, 14))
sketch3.addConstraint(Sketcher.Constraint("Perpendicular", 14, 15))
sketch3.addConstraint(Sketcher.Constraint("Parallel", 5, 16))
sketch3.addConstraint(Sketcher.Constraint("Perpendicular", 16, 17))
sketch3.addConstraint(Sketcher.Constraint("Parallel", 3, 18))
sketch3.addConstraint(Sketcher.Constraint("Parallel", 17, 19))
sketch3.addConstraint(Sketcher.Constraint("Parallel", 12, 22))
sketch3.addConstraint(Sketcher.Constraint("Parallel", 15, 23))
sketch3.addConstraint(Sketcher.Constraint("Perpendicular", 23, 24))
sketch3.addConstraint(Sketcher.Constraint("Perpendicular", 24, 25))
sketch3.addConstraint(Sketcher.Constraint("Perpendicular", 19, 26))
sketch3.addConstraint(Sketcher.Constraint("Perpendicular", 26, 27))
sketch3.addConstraint(Sketcher.Constraint("Parallel", 18, 28))
sketch3.addConstraint(Sketcher.Constraint("Parallel", 27, 29))
sketch3.addConstraint(Sketcher.Constraint("Parallel", 22, 32))
sketch3.addConstraint(Sketcher.Constraint("Parallel", 25, 33))
sketch3.addConstraint(Sketcher.Constraint("Perpendicular", 33, 34))
sketch3.addConstraint(Sketcher.Constraint("Perpendicular", 34, 35))
sketch3.addConstraint(Sketcher.Constraint("Perpendicular", 29, 36))
sketch3.addConstraint(Sketcher.Constraint("Perpendicular", 36, 37))
sketch3.addConstraint(Sketcher.Constraint("Parallel", 28, 38))
sketch3.addConstraint(Sketcher.Constraint("Parallel", 37, 39))
sketch3.addConstraint(Sketcher.Constraint("Parallel", 32, 42))
sketch3.addConstraint(Sketcher.Constraint("Parallel", 35, 43))
sketch3.addConstraint(Sketcher.Constraint("Perpendicular", 43, 44))
sketch3.addConstraint(Sketcher.Constraint("Perpendicular", 44, 45))
sketch3.addConstraint(Sketcher.Constraint("Perpendicular", 39, 46))
sketch3.addConstraint(Sketcher.Constraint("Perpendicular", 46, 47))
sketch3.addConstraint(Sketcher.Constraint("Parallel", 38, 48))
sketch3.addConstraint(Sketcher.Constraint("Parallel", 47, 49))
sketch3.addConstraint(Sketcher.Constraint("Parallel", 42, 52))
sketch3.addConstraint(Sketcher.Constraint("Parallel", 45, 53))
sketch3.addConstraint(Sketcher.Constraint("Perpendicular", 53, 54))
sketch3.addConstraint(Sketcher.Constraint("Perpendicular", 54, 55))
sketch3.addConstraint(Sketcher.Constraint("Perpendicular", 49, 56))
sketch3.addConstraint(Sketcher.Constraint("Perpendicular", 56, 57))
sketch3.addConstraint(Sketcher.Constraint("Parallel", 48, 58))
sketch3.addConstraint(Sketcher.Constraint("Parallel", 57, 59))
sketch3.addConstraint(Sketcher.Constraint("Parallel", 52, 62))
sketch3.addConstraint(Sketcher.Constraint("Parallel", 55, 63))
sketch3.addConstraint(Sketcher.Constraint("Perpendicular", 63, 64))
sketch3.addConstraint(Sketcher.Constraint("Perpendicular", 64, 65))
sketch3.addConstraint(Sketcher.Constraint("Perpendicular", 59, 66))
sketch3.addConstraint(Sketcher.Constraint("Perpendicular", 66, 67))
sketch3.addConstraint(Sketcher.Constraint("Parallel", 58, 68))
sketch3.addConstraint(Sketcher.Constraint("Parallel", 67, 69))
sketch3.addConstraint(Sketcher.Constraint("Parallel", 62, 72))
sketch3.addConstraint(Sketcher.Constraint("Parallel", 65, 73))
sketch3.addConstraint(Sketcher.Constraint("Perpendicular", 73, 74))
sketch3.addConstraint(Sketcher.Constraint("Perpendicular", 74, 75))
sketch3.addConstraint(Sketcher.Constraint("Perpendicular", 69, 76))
sketch3.addConstraint(Sketcher.Constraint("Perpendicular", 76, 77))
sketch3.addConstraint(Sketcher.Constraint("Parallel", 68, 78))
sketch3.addConstraint(Sketcher.Constraint("Parallel", 77, 79))
sketch3.addConstraint(Sketcher.Constraint("Parallel", 72, 82))
sketch3.addConstraint(Sketcher.Constraint("Parallel", 75, 83))
sketch3.addConstraint(Sketcher.Constraint("Perpendicular", 83, 84))
sketch3.addConstraint(Sketcher.Constraint("Perpendicular", 84, 85))
sketch3.addConstraint(Sketcher.Constraint("Perpendicular", 79, 86))
sketch3.addConstraint(Sketcher.Constraint("Perpendicular", 86, 87))
sketch3.addConstraint(Sketcher.Constraint("Parallel", 78, 88))
sketch3.addConstraint(Sketcher.Constraint("Parallel", 87, 89))
sketch3.addConstraint(Sketcher.Constraint("Horizontal", 0, 3, 10, 3))
sketch3.addConstraint(Sketcher.Constraint("Horizontal", 1, 3, 11, 3))
sketch3.addConstraint(Sketcher.Constraint("Horizontal", 10, 3, 20, 3))
sketch3.addConstraint(Sketcher.Constraint("Horizontal", 11, 3, 21, 3))
sketch3.addConstraint(Sketcher.Constraint("Horizontal", 30, 3, 40, 3))
sketch3.addConstraint(Sketcher.Constraint("Horizontal", 31, 3, 41, 3))
sketch3.addConstraint(Sketcher.Constraint("Horizontal", 40, 3, 50, 3))
sketch3.addConstraint(Sketcher.Constraint("Horizontal", 41, 3, 51, 3))
sketch3.addConstraint(Sketcher.Constraint("Horizontal", 60, 3, 70, 3))
sketch3.addConstraint(Sketcher.Constraint("Horizontal", 61, 3, 71, 3))
sketch3.addConstraint(Sketcher.Constraint("Horizontal", 70, 3, 80, 3))
sketch3.addConstraint(Sketcher.Constraint("Horizontal", 71, 3, 81, 3))
sketch3.addConstraint(Sketcher.Constraint("Horizontal", 8, 2, 12, 2))
sketch3.addConstraint(Sketcher.Constraint("Horizontal", 9, 2, 13, 2))
sketch3.addConstraint(Sketcher.Constraint("Horizontal", 6, 2, 14, 2))
sketch3.addConstraint(Sketcher.Constraint("Horizontal", 5, 2, 16, 2))
sketch3.addConstraint(Sketcher.Constraint("Horizontal", 2, 2, 17, 2))
sketch3.addConstraint(Sketcher.Constraint("Horizontal", 3, 2, 18, 2))
sketch3.addConstraint(Sketcher.Constraint("Horizontal", 12, 2, 22, 2))
sketch3.addConstraint(Sketcher.Constraint("Horizontal", 13, 2, 23, 2))
sketch3.addConstraint(Sketcher.Constraint("Horizontal", 14, 2, 24, 2))
sketch3.addConstraint(Sketcher.Constraint("Horizontal", 16, 2, 26, 2))
sketch3.addConstraint(Sketcher.Constraint("Horizontal", 17, 2, 27, 2))
sketch3.addConstraint(Sketcher.Constraint("Horizontal", 18, 2, 28, 2))
sketch3.addConstraint(Sketcher.Constraint("Horizontal", 32, 2, 42, 2))
sketch3.addConstraint(Sketcher.Constraint("Horizontal", 33, 2, 43, 2))
sketch3.addConstraint(Sketcher.Constraint("Horizontal", 34, 2, 44, 2))
sketch3.addConstraint(Sketcher.Constraint("Horizontal", 36, 2, 46, 2))
sketch3.addConstraint(Sketcher.Constraint("Horizontal", 37, 2, 47, 2))
sketch3.addConstraint(Sketcher.Constraint("Horizontal", 38, 2, 48, 2))
sketch3.addConstraint(Sketcher.Constraint("Horizontal", 42, 2, 52, 2))
sketch3.addConstraint(Sketcher.Constraint("Horizontal", 43, 2, 53, 2))
sketch3.addConstraint(Sketcher.Constraint("Horizontal", 44, 2, 54, 2))
sketch3.addConstraint(Sketcher.Constraint("Horizontal", 46, 2, 56, 2))
sketch3.addConstraint(Sketcher.Constraint("Horizontal", 47, 2, 57, 2))
sketch3.addConstraint(Sketcher.Constraint("Horizontal", 48, 2, 58, 2))
sketch3.addConstraint(Sketcher.Constraint("Horizontal", 62, 2, 72, 2))
sketch3.addConstraint(Sketcher.Constraint("Horizontal", 63, 2, 73, 2))
sketch3.addConstraint(Sketcher.Constraint("Horizontal", 64, 2, 74, 2))
sketch3.addConstraint(Sketcher.Constraint("Horizontal", 66, 2, 76, 2))
sketch3.addConstraint(Sketcher.Constraint("Horizontal", 67, 2, 77, 2))
sketch3.addConstraint(Sketcher.Constraint("Horizontal", 68, 2, 78, 2))
sketch3.addConstraint(Sketcher.Constraint("Horizontal", 72, 2, 82, 2))
sketch3.addConstraint(Sketcher.Constraint("Horizontal", 73, 2, 83, 2))
sketch3.addConstraint(Sketcher.Constraint("Horizontal", 74, 2, 84, 2))
sketch3.addConstraint(Sketcher.Constraint("Horizontal", 76, 2, 86, 2))
sketch3.addConstraint(Sketcher.Constraint("Horizontal", 77, 2, 87, 2))
sketch3.addConstraint(Sketcher.Constraint("Horizontal", 78, 2, 88, 2))
sketch3.addConstraint(Sketcher.Constraint("Vertical", 0, 3, 1, 3))
sketch3.addConstraint(Sketcher.Constraint("Vertical", 10, 3, 11, 3))
sketch3.addConstraint(Sketcher.Constraint("Vertical", 20, 3, 21, 3))
sketch3.addConstraint(Sketcher.Constraint("Vertical", 1, 3, 30, 3))
sketch3.addConstraint(Sketcher.Constraint("Vertical", 30, 3, 31, 3))
sketch3.addConstraint(Sketcher.Constraint("Vertical", 11, 3, 40, 3))
sketch3.addConstraint(Sketcher.Constraint("Vertical", 40, 3, 41, 3))
sketch3.addConstraint(Sketcher.Constraint("Vertical", 21, 3, 50, 3))
sketch3.addConstraint(Sketcher.Constraint("Vertical", 50, 3, 51, 3))
sketch3.addConstraint(Sketcher.Constraint("Vertical", 31, 3, 60, 3))
sketch3.addConstraint(Sketcher.Constraint("Vertical", 60, 3, 61, 3))
sketch3.addConstraint(Sketcher.Constraint("Vertical", 41, 3, 70, 3))
sketch3.addConstraint(Sketcher.Constraint("Vertical", 70, 3, 71, 3))
sketch3.addConstraint(Sketcher.Constraint("Vertical", 51, 3, 80, 3))
sketch3.addConstraint(Sketcher.Constraint("Vertical", 80, 3, 81, 3))
sketch3.addConstraint(Sketcher.Constraint("Vertical", 8, 2, 32, 2))
sketch3.addConstraint(Sketcher.Constraint("Vertical", 9, 2, 33, 2))
sketch3.addConstraint(Sketcher.Constraint("Vertical", 6, 2, 34, 2))
sketch3.addConstraint(Sketcher.Constraint("Vertical", 5, 2, 36, 2))
sketch3.addConstraint(Sketcher.Constraint("Vertical", 2, 2, 37, 2))
sketch3.addConstraint(Sketcher.Constraint("Vertical", 3, 2, 38, 2))
sketch3.addConstraint(Sketcher.Constraint("Vertical", 12, 2, 42, 2))
sketch3.addConstraint(Sketcher.Constraint("Vertical", 16, 2, 46, 2))
sketch3.addConstraint(Sketcher.Constraint("Vertical", 22, 2, 52, 2))
sketch3.addConstraint(Sketcher.Constraint("Vertical", 26, 2, 56, 2))
sketch3.addConstraint(Sketcher.Constraint("Vertical", 32, 2, 62, 2))
sketch3.addConstraint(Sketcher.Constraint("Vertical", 33, 2, 63, 2))
sketch3.addConstraint(Sketcher.Constraint("Vertical", 34, 2, 64, 2))
sketch3.addConstraint(Sketcher.Constraint("Vertical", 36, 2, 66, 2))
sketch3.addConstraint(Sketcher.Constraint("Vertical", 37, 2, 67, 2))
sketch3.addConstraint(Sketcher.Constraint("Vertical", 38, 2, 68, 2))
sketch3.addConstraint(Sketcher.Constraint("Vertical", 42, 2, 72, 2))
sketch3.addConstraint(Sketcher.Constraint("Vertical", 46, 2, 76, 2))
sketch3.addConstraint(Sketcher.Constraint("Vertical", 52, 2, 82, 2))
sketch3.addConstraint(Sketcher.Constraint("Vertical", 56, 2, 86, 2))
sketch3.addConstraint(Sketcher.Constraint("Equal", 5, 6))
sketch3.addConstraint(Sketcher.Constraint("Equal", 2, 7))
sketch3.addConstraint(Sketcher.Constraint("Equal", 3, 8))
sketch3.addConstraint(Sketcher.Constraint("Diameter", 0, Q("3 mm")))
sketch3.addConstraint(Sketcher.Constraint("Angle", 3, Q("159.8993 deg")))
sketch3.addConstraint(Sketcher.Constraint("DistanceY", -1, 1, 0, 3, Q("12.399 mm")))
sketch3.addConstraint(Sketcher.Constraint("DistanceY", -1, 1, 1, 3, Q("16.399 mm")))
sketch3.addConstraint(Sketcher.Constraint("DistanceY", 30, 3, -1, 1, Q("2.101 mm")))
sketch3.addConstraint(Sketcher.Constraint("DistanceY", -1, 1, 31, 3, Q("1.899 mm")))
sketch3.addConstraint(Sketcher.Constraint("DistanceY", 60, 3, -1, 1, Q("16.601 mm")))
sketch3.addConstraint(Sketcher.Constraint("DistanceY", 61, 3, -1, 1, Q("12.601 mm")))
sketch3.addConstraint(Sketcher.Constraint("DistanceY", -1, 1, 2, 2, Q("13.899 mm")))
sketch3.addConstraint(Sketcher.Constraint("DistanceY", -1, 1, 4, 2, Q("11.582 mm")))
sketch3.addConstraint(Sketcher.Constraint("DistanceY", -1, 1, 5, 2, Q("11.399 mm")))
sketch3.addConstraint(Sketcher.Constraint("DistanceY", -1, 1, 8, 2, Q("14.943 mm")))
sketch3.addConstraint(Sketcher.Constraint("DistanceY", -1, 1, 32, 2, Q("0.443 mm")))
sketch3.addConstraint(Sketcher.Constraint("DistanceY", 36, 2, -1, 1, Q("3.101 mm")))
sketch3.addConstraint(Sketcher.Constraint("DistanceY", 62, 2, -1, 1, Q("14.057 mm")))
sketch3.addConstraint(Sketcher.Constraint("DistanceY", 66, 2, -1, 1, Q("17.601 mm")))
sketch3.addConstraint(Sketcher.Constraint("Distance", 2, Q("2.9155 mm")))
sketch3.addConstraint(Sketcher.Constraint("DistanceX", 0, 3, -1, 1, Q("15.4954 mm")))
sketch3.addConstraint(Sketcher.Constraint("DistanceX", 10, 3, -1, 1, Q("2.4954 mm")))
sketch3.addConstraint(Sketcher.Constraint("DistanceX", -1, 1, 20, 3, Q("10.5046 mm")))
sketch3.addConstraint(Sketcher.Constraint("DistanceX", 2, 2, -1, 1, Q("16.4954 mm")))
sketch3.addConstraint(Sketcher.Constraint("DistanceX", 6, 2, -1, 1, Q("18.4212 mm")))
sketch3.addConstraint(Sketcher.Constraint("DistanceY", -1, 1, 6, 2, Q("17.1033 mm")))
sketch3.addConstraint(Sketcher.Constraint("DistanceX", 12, 2, -1, 1, Q("3.5327 mm")))
sketch3.addConstraint(Sketcher.Constraint("DistanceX", 16, 2, -1, 1, Q("4.9954 mm")))
sketch3.addConstraint(Sketcher.Constraint("DistanceX", -1, 1, 22, 2, Q("9.4673 mm")))
sketch3.addConstraint(Sketcher.Constraint("DistanceX", -1, 1, 26, 2, Q("8.0046 mm")))
pad2 = body.newObject("PartDesign::Pad", "Pad001")
pad2.Profile = sketch3
pad2.Length = 4
pad2.Reversed = True
doc.recompute()

chamfer = body.newObject("PartDesign::Chamfer", "Chamfer")
chamfer.Base = (pad2, edges_at(pad2, [(-27.97, -10.848, 0)]))
chamfer.Size = 3

doc.recompute()
